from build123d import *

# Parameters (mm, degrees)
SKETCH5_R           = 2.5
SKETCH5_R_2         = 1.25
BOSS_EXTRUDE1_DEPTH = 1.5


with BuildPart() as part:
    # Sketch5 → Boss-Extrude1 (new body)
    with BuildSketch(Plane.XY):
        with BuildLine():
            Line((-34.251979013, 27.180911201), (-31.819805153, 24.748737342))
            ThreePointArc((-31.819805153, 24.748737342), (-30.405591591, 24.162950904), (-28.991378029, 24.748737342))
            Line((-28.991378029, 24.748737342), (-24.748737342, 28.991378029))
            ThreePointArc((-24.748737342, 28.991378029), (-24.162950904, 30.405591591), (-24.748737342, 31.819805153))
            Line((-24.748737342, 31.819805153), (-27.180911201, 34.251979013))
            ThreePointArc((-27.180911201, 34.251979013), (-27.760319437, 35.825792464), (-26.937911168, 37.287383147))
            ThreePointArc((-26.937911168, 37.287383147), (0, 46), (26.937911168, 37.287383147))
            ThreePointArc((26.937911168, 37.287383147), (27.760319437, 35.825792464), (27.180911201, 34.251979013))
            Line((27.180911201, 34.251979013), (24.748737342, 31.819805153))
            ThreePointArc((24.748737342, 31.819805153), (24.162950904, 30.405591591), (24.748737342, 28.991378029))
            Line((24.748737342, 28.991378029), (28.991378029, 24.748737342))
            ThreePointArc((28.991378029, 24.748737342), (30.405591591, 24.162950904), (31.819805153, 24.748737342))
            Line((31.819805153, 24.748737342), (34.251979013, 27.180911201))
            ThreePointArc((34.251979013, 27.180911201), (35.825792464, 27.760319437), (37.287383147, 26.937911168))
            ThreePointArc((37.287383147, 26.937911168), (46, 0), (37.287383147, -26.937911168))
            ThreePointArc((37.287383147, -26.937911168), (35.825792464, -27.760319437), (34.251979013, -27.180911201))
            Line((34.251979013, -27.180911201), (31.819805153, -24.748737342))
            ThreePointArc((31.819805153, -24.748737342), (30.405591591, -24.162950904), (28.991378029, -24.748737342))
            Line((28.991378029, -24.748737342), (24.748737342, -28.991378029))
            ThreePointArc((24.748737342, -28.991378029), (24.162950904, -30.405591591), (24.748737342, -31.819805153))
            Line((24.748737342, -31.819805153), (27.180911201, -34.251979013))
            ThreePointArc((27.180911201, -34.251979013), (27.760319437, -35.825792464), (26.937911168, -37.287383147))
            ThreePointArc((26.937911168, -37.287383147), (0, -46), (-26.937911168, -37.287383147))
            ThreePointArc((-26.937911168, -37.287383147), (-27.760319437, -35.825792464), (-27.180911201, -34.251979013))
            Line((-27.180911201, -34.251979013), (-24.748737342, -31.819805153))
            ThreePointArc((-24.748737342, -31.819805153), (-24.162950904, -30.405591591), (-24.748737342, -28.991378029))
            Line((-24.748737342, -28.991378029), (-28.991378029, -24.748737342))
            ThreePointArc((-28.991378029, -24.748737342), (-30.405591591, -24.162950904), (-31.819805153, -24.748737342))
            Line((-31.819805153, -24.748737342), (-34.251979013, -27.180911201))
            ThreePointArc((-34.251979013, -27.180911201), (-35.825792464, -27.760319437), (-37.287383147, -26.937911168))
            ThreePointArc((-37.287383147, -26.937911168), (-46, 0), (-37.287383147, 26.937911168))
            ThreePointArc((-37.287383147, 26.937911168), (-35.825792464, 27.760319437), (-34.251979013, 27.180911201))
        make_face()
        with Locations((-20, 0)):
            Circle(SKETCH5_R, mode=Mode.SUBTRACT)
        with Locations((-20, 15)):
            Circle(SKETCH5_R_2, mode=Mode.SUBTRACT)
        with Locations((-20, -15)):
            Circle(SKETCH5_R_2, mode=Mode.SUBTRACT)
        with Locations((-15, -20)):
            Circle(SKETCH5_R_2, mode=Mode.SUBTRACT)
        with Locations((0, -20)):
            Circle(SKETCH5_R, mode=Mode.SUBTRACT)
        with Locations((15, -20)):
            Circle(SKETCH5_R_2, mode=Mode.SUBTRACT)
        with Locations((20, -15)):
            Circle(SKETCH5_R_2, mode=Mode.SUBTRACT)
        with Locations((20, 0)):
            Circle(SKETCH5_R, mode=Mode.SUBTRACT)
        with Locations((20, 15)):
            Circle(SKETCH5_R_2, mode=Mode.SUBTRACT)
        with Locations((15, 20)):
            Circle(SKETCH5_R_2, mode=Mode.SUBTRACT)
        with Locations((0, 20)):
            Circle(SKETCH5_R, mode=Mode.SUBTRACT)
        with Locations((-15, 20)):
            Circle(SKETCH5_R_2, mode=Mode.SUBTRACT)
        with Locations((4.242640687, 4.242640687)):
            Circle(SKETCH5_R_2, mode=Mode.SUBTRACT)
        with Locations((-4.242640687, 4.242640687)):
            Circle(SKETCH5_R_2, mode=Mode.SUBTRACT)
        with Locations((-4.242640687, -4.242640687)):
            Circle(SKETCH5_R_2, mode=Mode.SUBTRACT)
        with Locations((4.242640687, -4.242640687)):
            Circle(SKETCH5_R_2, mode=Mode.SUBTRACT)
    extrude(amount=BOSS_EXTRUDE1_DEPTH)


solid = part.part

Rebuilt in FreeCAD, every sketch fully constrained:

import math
import FreeCAD as App
import Part
import Sketcher

doc = App.newDocument("Part")
params = doc.addObject("Spreadsheet::Sheet", "Params")
for row, (alias, value) in enumerate([
    ("sketch1_diameter", "5 mm"),
    ("sketch1_radius", "2 mm"),
    ("sketch1_radius2", "46 mm"),
    ("sketch1_diameter2", "2.5 mm"),
    ("sketch1_length", "6 mm"),
    ("pad1_length", "1.5 mm"),
], start=1):
    params.set(f"A{row}", alias)
    params.set(f"B{row}", "=" + value)
    params.setAlias(f"B{row}", alias)

body = doc.addObject("PartDesign::Body", "Body")

sketch1 = body.newObject("Sketcher::SketchObject", "Sketch")
sketch1.AttachmentSupport = (doc.getObject("XY_Plane"), [""])
sketch1.MapMode = "FlatFace"
sketch1.addGeometry([
    Part.LineSegment(App.Vector(-31.8, 24.7, 0), App.Vector(-34.3, 27.2, 0)),
    Part.ArcOfCircle(Part.Circle(App.Vector(-35.7, 25.8, 0), App.Vector(0, 0, 1), 2), math.radians(45), math.radians(144)),
    Part.ArcOfCircle(Part.Circle(App.Vector(0, 0, 0), App.Vector(0, 0, 1), 46), math.radians(144), math.radians(216)),
    Part.ArcOfCircle(Part.Circle(App.Vector(-35.7, -25.8, 0), App.Vector(0, 0, 1), 2), math.radians(-144), math.radians(-45)),
    Part.LineSegment(App.Vector(-34.3, -27.2, 0), App.Vector(-31.8, -24.7, 0)),
    Part.ArcOfCircle(Part.Circle(App.Vector(-30.4, -26.2, 0), App.Vector(0, 0, 1), 2), math.radians(45), math.radians(135)),
    Part.LineSegment(App.Vector(-29, -24.7, 0), App.Vector(-24.7, -29, 0)),
    Part.ArcOfCircle(Part.Circle(App.Vector(-26.2, -30.4, 0), App.Vector(0, 0, 1), 2), math.radians(-45), math.radians(45)),
    Part.LineSegment(App.Vector(-24.7, -31.8, 0), App.Vector(-27.2, -34.3, 0)),
    Part.ArcOfCircle(Part.Circle(App.Vector(-25.8, -35.7, 0), App.Vector(0, 0, 1), 2), math.radians(135), math.radians(234)),
    Part.ArcOfCircle(Part.Circle(App.Vector(0, 0, 0), App.Vector(0, 0, 1), 46), math.radians(-126), math.radians(-54)),
    Part.ArcOfCircle(Part.Circle(App.Vector(25.8, -35.7, 0), App.Vector(0, 0, 1), 2), math.radians(-54), math.radians(45)),
    Part.LineSegment(App.Vector(27.2, -34.3, 0), App.Vector(24.7, -31.8, 0)),
    Part.ArcOfCircle(Part.Circle(App.Vector(26.2, -30.4, 0), App.Vector(0, 0, 1), 2), math.radians(135), math.radians(225)),
    Part.LineSegment(App.Vector(24.7, -29, 0), App.Vector(29, -24.7, 0)),
    Part.ArcOfCircle(Part.Circle(App.Vector(30.4, -26.2, 0), App.Vector(0, 0, 1), 2), math.radians(45), math.radians(135)),
    Part.LineSegment(App.Vector(31.8, -24.7, 0), App.Vector(34.3, -27.2, 0)),
    Part.ArcOfCircle(Part.Circle(App.Vector(35.7, -25.8, 0), App.Vector(0, 0, 1), 2), math.radians(-135), math.radians(-36)),
    Part.ArcOfCircle(Part.Circle(App.Vector(0, 0, 0), App.Vector(0, 0, 1), 46), math.radians(-36), math.radians(36)),
    Part.ArcOfCircle(Part.Circle(App.Vector(35.7, 25.8, 0), App.Vector(0, 0, 1), 2), math.radians(36), math.radians(135)),
    Part.LineSegment(App.Vector(34.3, 27.2, 0), App.Vector(31.8, 24.7, 0)),
    Part.ArcOfCircle(Part.Circle(App.Vector(30.4, 26.2, 0), App.Vector(0, 0, 1), 2), math.radians(-135), math.radians(-45)),
    Part.LineSegment(App.Vector(29, 24.7, 0), App.Vector(24.7, 29, 0)),
    Part.ArcOfCircle(Part.Circle(App.Vector(26.2, 30.4, 0), App.Vector(0, 0, 1), 2), math.radians(135), math.radians(225)),
    Part.LineSegment(App.Vector(24.7, 31.8, 0), App.Vector(27.2, 34.3, 0)),
    Part.ArcOfCircle(Part.Circle(App.Vector(25.8, 35.7, 0), App.Vector(0, 0, 1), 2), math.radians(-45), math.radians(54)),
    Part.ArcOfCircle(Part.Circle(App.Vector(0, 0, 0), App.Vector(0, 0, 1), 46), math.radians(54), math.radians(126)),
    Part.ArcOfCircle(Part.Circle(App.Vector(-25.8, 35.7, 0), App.Vector(0, 0, 1), 2), math.radians(126), math.radians(225)),
    Part.LineSegment(App.Vector(-27.2, 34.3, 0), App.Vector(-24.7, 31.8, 0)),
    Part.ArcOfCircle(Part.Circle(App.Vector(-26.2, 30.4, 0), App.Vector(0, 0, 1), 2), math.radians(-45), math.radians(45)),
    Part.LineSegment(App.Vector(-24.7, 29, 0), App.Vector(-29, 24.7, 0)),
    Part.ArcOfCircle(Part.Circle(App.Vector(-30.4, 26.2, 0), App.Vector(0, 0, 1), 2), math.radians(-135), math.radians(-45)),
    Part.Circle(App.Vector(15, -20, 0), App.Vector(0, 0, 1), 1.2),
    Part.Circle(App.Vector(20, -15, 0), App.Vector(0, 0, 1), 1.2),
    Part.Circle(App.Vector(4.2, -4.2, 0), App.Vector(0, 0, 1), 1.2),
    Part.Circle(App.Vector(0, -20, 0), App.Vector(0, 0, 1), 2.5),
    Part.Circle(App.Vector(-15, -20, 0), App.Vector(0, 0, 1), 1.2),
    Part.Circle(App.Vector(-20, -15, 0), App.Vector(0, 0, 1), 1.2),
    Part.Circle(App.Vector(-4.2, -4.2, 0), App.Vector(0, 0, 1), 1.2),
    Part.Circle(App.Vector(20, 0, 0), App.Vector(0, 0, 1), 2.5),
    Part.Circle(App.Vector(4.2, 4.2, 0), App.Vector(0, 0, 1), 1.2),
    Part.Circle(App.Vector(20, 15, 0), App.Vector(0, 0, 1), 1.2),
    Part.Circle(App.Vector(15, 20, 0), App.Vector(0, 0, 1), 1.2),
    Part.Circle(App.Vector(-4.2, 4.2, 0), App.Vector(0, 0, 1), 1.2),
    Part.Circle(App.Vector(-20, 0, 0), App.Vector(0, 0, 1), 2.5),
    Part.Circle(App.Vector(0, 20, 0), App.Vector(0, 0, 1), 2.5),
    Part.Circle(App.Vector(-20, 15, 0), App.Vector(0, 0, 1), 1.2),
    Part.Circle(App.Vector(-15, 20, 0), App.Vector(0, 0, 1), 1.2),
], False)
sketch1.addConstraint([
    Sketcher.Constraint("Tangent", 0, 2, 1, 1),
    Sketcher.Constraint("Tangent", 1, 2, 2, 1),
    Sketcher.Constraint("Tangent", 2, 2, 3, 1),
    Sketcher.Constraint("Tangent", 3, 2, 4, 1),
    Sketcher.Constraint("Tangent", 4, 2, 5, 2),
    Sketcher.Constraint("Tangent", 5, 1, 6, 1),
    Sketcher.Constraint("Tangent", 6, 2, 7, 2),
    Sketcher.Constraint("Tangent", 7, 1, 8, 1),
    Sketcher.Constraint("Tangent", 8, 2, 9, 1),
    Sketcher.Constraint("Tangent", 9, 2, 10, 1),
    Sketcher.Constraint("Tangent", 10, 2, 11, 1),
    Sketcher.Constraint("Tangent", 11, 2, 12, 1),
    Sketcher.Constraint("Tangent", 12, 2, 13, 2),
    Sketcher.Constraint("Tangent", 13, 1, 14, 1),
    Sketcher.Constraint("Tangent", 14, 2, 15, 2),
    Sketcher.Constraint("Tangent", 15, 1, 16, 1),
    Sketcher.Constraint("Tangent", 16, 2, 17, 1),
    Sketcher.Constraint("Tangent", 17, 2, 18, 1),
    Sketcher.Constraint("Tangent", 18, 2, 19, 1),
    Sketcher.Constraint("Tangent", 19, 2, 20, 1),
    Sketcher.Constraint("Tangent", 20, 2, 21, 2),
    Sketcher.Constraint("Tangent", 21, 1, 22, 1),
    Sketcher.Constraint("Tangent", 22, 2, 23, 2),
    Sketcher.Constraint("Tangent", 23, 1, 24, 1),
    Sketcher.Constraint("Tangent", 24, 2, 25, 1),
    Sketcher.Constraint("Tangent", 25, 2, 26, 1),
    Sketcher.Constraint("Tangent", 26, 2, 27, 1),
    Sketcher.Constraint("Tangent", 27, 2, 28, 1),
    Sketcher.Constraint("Tangent", 28, 2, 29, 2),
    Sketcher.Constraint("Tangent", 29, 1, 30, 1),
    Sketcher.Constraint("Tangent", 30, 2, 31, 2),
    Sketcher.Constraint("Tangent", 31, 1, 0, 1),
    Sketcher.Constraint("Coincident", 2, 3, -1, 1),
    Sketcher.Constraint("Coincident", 10, 3, -1, 1),
    Sketcher.Constraint("Coincident", 18, 3, -1, 1),
    Sketcher.Constraint("Coincident", 26, 3, -1, 1),
    Sketcher.Constraint("Equal", 1, 3),
    Sketcher.Constraint("Equal", 3, 5),
    Sketcher.Constraint("Equal", 5, 7),
    Sketcher.Constraint("Equal", 7, 9),
    Sketcher.Constraint("Equal", 2, 10),
    Sketcher.Constraint("Equal", 9, 11),
    Sketcher.Constraint("Equal", 11, 13),
    Sketcher.Constraint("Equal", 13, 15),
    Sketcher.Constraint("Equal", 15, 17),
    Sketcher.Constraint("Equal", 10, 18),
    Sketcher.Constraint("Equal", 17, 19),
    Sketcher.Constraint("Equal", 19, 21),
    Sketcher.Constraint("Equal", 21, 23),
    Sketcher.Constraint("Equal", 23, 25),
    Sketcher.Constraint("Equal", 18, 26),
    Sketcher.Constraint("Equal", 25, 27),
    Sketcher.Constraint("Equal", 27, 29),
    Sketcher.Constraint("Equal", 29, 31),
    Sketcher.Constraint("Equal", 32, 33),
    Sketcher.Constraint("Equal", 33, 34),
    Sketcher.Constraint("Equal", 34, 36),
    Sketcher.Constraint("Equal", 36, 37),
    Sketcher.Constraint("Equal", 37, 38),
    Sketcher.Constraint("Equal", 35, 39),
    Sketcher.Constraint("Equal", 38, 40),
    Sketcher.Constraint("Equal", 40, 41),
    Sketcher.Constraint("Equal", 41, 42),
    Sketcher.Constraint("Equal", 42, 43),
    Sketcher.Constraint("Equal", 39, 44),
    Sketcher.Constraint("Equal", 44, 45),
    Sketcher.Constraint("Equal", 43, 46),
    Sketcher.Constraint("Equal", 46, 47),
    Sketcher.Constraint("Symmetric", 5, 3, 21, 3, -1, 1),
    Sketcher.Constraint("Symmetric", 7, 3, 23, 3, -1, 1),
    Sketcher.Constraint("Symmetric", 13, 3, 29, 3, -1, 1),
    Sketcher.Constraint("Symmetric", 15, 3, 31, 3, -1, 1),
    Sketcher.Constraint("Symmetric", 38, 3, 40, 3, -1, 1),
    Sketcher.Constraint("Symmetric", 37, 3, 41, 3, -1, 1),
    Sketcher.Constraint("Symmetric", 36, 3, 42, 3, -1, 1),
    Sketcher.Constraint("Symmetric", 34, 3, 43, 3, -1, 1),
    Sketcher.Constraint("Symmetric", 39, 3, 44, 3, -1, 1),
    Sketcher.Constraint("Symmetric", 35, 3, 45, 3, -1, 1),
    Sketcher.Constraint("Symmetric", 33, 3, 46, 3, -1, 1),
    Sketcher.Constraint("Symmetric", 32, 3, 47, 3, -1, 1),
    Sketcher.Constraint("Symmetric", 7, 3, 13, 3, -2),
    Sketcher.Constraint("Symmetric", 5, 3, 15, 3, -2),
    Sketcher.Constraint("Symmetric", 32, 3, 36, 3, -2),
    Sketcher.Constraint("Symmetric", 33, 3, 37, 3, -2),
    Sketcher.Constraint("Symmetric", 34, 3, 38, 3, -2),
    Sketcher.Constraint("PointOnObject", 35, 3, -2),
    Sketcher.Constraint("PointOnObject", 39, 3, -1),
    Sketcher.Constraint("Perpendicular", 0, 4),
    Sketcher.Constraint("Perpendicular", 4, 6),
    Sketcher.Constraint("Perpendicular", 6, 8),
    Sketcher.Constraint("Perpendicular", 8, 12),
    Sketcher.Constraint("Perpendicular", 12, 14),
    Sketcher.Constraint("Perpendicular", 14, 16),
    Sketcher.Constraint("Perpendicular", 16, 20),
    Sketcher.Constraint("Perpendicular", 22, 24),
    Sketcher.Constraint("Perpendicular", 24, 28),
    Sketcher.Constraint("Horizontal", 32, 3, 35, 3),
    Sketcher.Constraint("Vertical", 33, 3, 39, 3),
    Sketcher.Constraint("Equal", 4, 8),
    Sketcher.Constraint("Diameter", 35, 5.0),
    Sketcher.Constraint("Radius", 1, 2.0),
    Sketcher.Constraint("Radius", 2, 46.0),
    Sketcher.Constraint("Diameter", 32, 2.5),
    Sketcher.Constraint("Distance", 6, 6.0),
    Sketcher.Constraint("DistanceX", -1, 1, 32, 3, 15.0),
    Sketcher.Constraint("DistanceY", 32, 3, -1, 1, 20.0),
    Sketcher.Constraint("DistanceX", -1, 1, 33, 3, 20.0),
    Sketcher.Constraint("DistanceY", 33, 3, -1, 1, 15.0),
    Sketcher.Constraint("DistanceX", 5, 3, -1, 1, 30.405592),
    Sketcher.Constraint("DistanceX", -1, 1, 34, 3, 4.242641),
    Sketcher.Constraint("DistanceY", 34, 3, -1, 1, 4.242641),
])
sketch1.setExpression("Constraints[99]", "Params.sketch1_diameter")
sketch1.setExpression("Constraints[100]", "Params.sketch1_radius")
sketch1.setExpression("Constraints[101]", "Params.sketch1_radius2")
sketch1.setExpression("Constraints[102]", "Params.sketch1_diameter2")
sketch1.setExpression("Constraints[103]", "Params.sketch1_length")
pad1 = body.newObject("PartDesign::Pad", "Pad")
pad1.Profile = sketch1
pad1.setExpression("Length", "Params.pad1_length")

doc.recompute()
